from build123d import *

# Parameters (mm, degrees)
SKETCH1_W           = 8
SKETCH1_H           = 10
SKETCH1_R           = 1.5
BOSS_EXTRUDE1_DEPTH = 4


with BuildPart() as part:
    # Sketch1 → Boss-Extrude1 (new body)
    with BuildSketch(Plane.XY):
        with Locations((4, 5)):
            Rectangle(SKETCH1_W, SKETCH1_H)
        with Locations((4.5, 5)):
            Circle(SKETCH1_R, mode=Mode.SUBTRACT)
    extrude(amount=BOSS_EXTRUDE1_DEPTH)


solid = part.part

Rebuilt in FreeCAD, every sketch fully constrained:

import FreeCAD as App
import Part
import Sketcher
Q = App.Units.Quantity


def add_polygon(sketch, points):
    """Adds a closed chain of lines whose ends are joined by coincident constraints."""
    first, n = sketch.GeometryCount, len(points)
    for a, b in zip(points, points[1:] + points[:1]):
        sketch.addGeometry(Part.LineSegment(App.Vector(*a, 0), App.Vector(*b, 0)), False)
    for i in range(n):
        sketch.addConstraint(Sketcher.Constraint("Coincident", first + i, 2, first + (i + 1) % n, 1))

doc = App.newDocument("Part")
body = doc.addObject("PartDesign::Body", "Body")

sketch1 = body.newObject("Sketcher::SketchObject", "Sketch")
sketch1.AttachmentSupport = (doc.getObject("XY_Plane"), [""])
sketch1.MapMode = "FlatFace"
add_polygon(sketch1, [(0, 10), (0, 0), (8, 0), (8, 10)])
sketch1.addGeometry(Part.Circle(App.Vector(4.5, 5, 0), App.Vector(0, 0, 1), 1.5), False)
sketch1.addConstraint([
    Sketcher.Constraint("Vertical", 0),
    Sketcher.Constraint("Horizontal", 1),
    Sketcher.Constraint("Vertical", 2),
    Sketcher.Constraint("Horizontal", 3),
    Sketcher.Constraint("Coincident", 0, 2, -1, 1),
    Sketcher.Constraint("Diameter", 4, Q("3 mm")),
    Sketcher.Constraint("DistanceX", 1, 1, 1, 2, Q("8 mm")),
    Sketcher.Constraint("DistanceY", 0, 2, 0, 1, Q("10 mm")),
    Sketcher.Constraint("DistanceY", -1, 1, 4, 3, Q("5 mm")),
    Sketcher.Constraint("DistanceX", -1, 1, 4, 3, Q("4.5 mm")),
])
pad1 = body.newObject("PartDesign::Pad", "Pad")
pad1.Profile = sketch1
pad1.Length = 4

doc.recompute()
